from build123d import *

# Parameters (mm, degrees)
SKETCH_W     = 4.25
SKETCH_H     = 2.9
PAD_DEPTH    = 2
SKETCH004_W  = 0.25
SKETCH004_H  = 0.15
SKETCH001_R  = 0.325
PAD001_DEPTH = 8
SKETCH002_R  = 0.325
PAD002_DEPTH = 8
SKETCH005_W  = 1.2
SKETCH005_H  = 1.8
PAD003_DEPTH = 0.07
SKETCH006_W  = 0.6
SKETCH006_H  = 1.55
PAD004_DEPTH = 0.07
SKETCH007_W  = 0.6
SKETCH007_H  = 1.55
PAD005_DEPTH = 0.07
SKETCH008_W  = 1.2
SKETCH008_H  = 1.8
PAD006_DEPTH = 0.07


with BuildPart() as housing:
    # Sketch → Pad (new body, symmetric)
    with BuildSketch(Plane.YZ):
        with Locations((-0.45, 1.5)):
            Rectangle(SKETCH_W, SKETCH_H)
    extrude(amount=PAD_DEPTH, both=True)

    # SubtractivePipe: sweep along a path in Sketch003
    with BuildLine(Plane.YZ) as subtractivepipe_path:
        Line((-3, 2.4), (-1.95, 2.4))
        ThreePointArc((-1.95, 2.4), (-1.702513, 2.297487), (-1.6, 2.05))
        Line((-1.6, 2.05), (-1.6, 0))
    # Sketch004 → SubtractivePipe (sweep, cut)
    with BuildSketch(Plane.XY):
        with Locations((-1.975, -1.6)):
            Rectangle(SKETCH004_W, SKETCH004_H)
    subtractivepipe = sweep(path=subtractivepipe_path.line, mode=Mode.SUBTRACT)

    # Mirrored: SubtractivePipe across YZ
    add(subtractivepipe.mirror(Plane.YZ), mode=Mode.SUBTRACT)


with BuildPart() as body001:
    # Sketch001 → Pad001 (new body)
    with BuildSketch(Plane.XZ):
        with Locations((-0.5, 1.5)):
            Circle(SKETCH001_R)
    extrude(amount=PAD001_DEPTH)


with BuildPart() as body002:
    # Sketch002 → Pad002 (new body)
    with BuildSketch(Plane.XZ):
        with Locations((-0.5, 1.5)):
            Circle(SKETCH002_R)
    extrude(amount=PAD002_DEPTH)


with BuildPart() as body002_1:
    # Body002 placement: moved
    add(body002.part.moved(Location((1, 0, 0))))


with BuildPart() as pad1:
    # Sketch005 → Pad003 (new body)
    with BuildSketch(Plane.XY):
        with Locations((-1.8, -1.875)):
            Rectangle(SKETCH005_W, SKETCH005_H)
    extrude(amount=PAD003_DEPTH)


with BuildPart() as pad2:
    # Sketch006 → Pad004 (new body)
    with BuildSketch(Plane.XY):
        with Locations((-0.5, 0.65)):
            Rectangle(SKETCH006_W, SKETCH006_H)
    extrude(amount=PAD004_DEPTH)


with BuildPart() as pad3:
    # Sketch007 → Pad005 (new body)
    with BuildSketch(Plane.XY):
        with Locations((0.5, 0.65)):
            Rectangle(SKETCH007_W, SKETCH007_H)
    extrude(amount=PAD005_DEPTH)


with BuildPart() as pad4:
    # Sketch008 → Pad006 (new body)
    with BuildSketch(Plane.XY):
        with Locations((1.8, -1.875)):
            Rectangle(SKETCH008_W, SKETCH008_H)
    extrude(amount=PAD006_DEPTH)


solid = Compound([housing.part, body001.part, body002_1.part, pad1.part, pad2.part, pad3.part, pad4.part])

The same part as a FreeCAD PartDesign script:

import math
import FreeCAD as App
import Part
import Sketcher

V = App.Vector
Q = App.Units.Quantity


def add_polygon(sketch, points):
    """Adds a closed chain of lines whose ends are joined by coincident constraints."""
    first, n = sketch.GeometryCount, len(points)
    for a, b in zip(points, points[1:] + points[:1]):
        sketch.addGeometry(Part.LineSegment(App.Vector(*a, 0), App.Vector(*b, 0)), False)
    for i in range(n):
        sketch.addConstraint(Sketcher.Constraint("Coincident", first + i, 2, first + (i + 1) % n, 1))

doc = App.newDocument("Part")
body = doc.addObject("PartDesign::Body", "Body")

# Sketch on YZ plane
sketch1 = body.newObject("Sketcher::SketchObject", "Sketch")
sketch1.AttachmentSupport = (doc.getObject("YZ_Plane"), [""])
sketch1.MapMode = "FlatFace"
add_polygon(sketch1, [(-2.6, 3), (-2.6, 0.1), (1.7, 0.1), (1.7, 3)])  # lines 0-3
sketch1.addConstraint(Sketcher.Constraint("Vertical", 0))
sketch1.addConstraint(Sketcher.Constraint("Horizontal", 1))
sketch1.addConstraint(Sketcher.Constraint("Vertical", 2))
sketch1.addConstraint(Sketcher.Constraint("Horizontal", 3))
sketch1.addConstraint(Sketcher.Constraint("DistanceY", 0, 2, 0, 1, Q("2.9 mm")))
sketch1.addConstraint(Sketcher.Constraint("DistanceX", 1, 1, 1, 2, Q("4.25 mm")))
sketch1.addConstraint(Sketcher.Constraint("DistanceY", -1, 1, 0, 2, Q("0.05 mm")))
sketch1.addConstraint(Sketcher.Constraint("DistanceX", 0, 2, -1, 1, Q("2.575 mm")))
pad1 = body.newObject("PartDesign::Pad", "Pad")
pad1.Profile = sketch1
pad1.Length = 4
pad1.Midplane = True

# Sketch on XY plane
sketch2 = body.newObject("Sketcher::SketchObject", "Sketch001")
sketch2.AttachmentSupport = (doc.getObject("XY_Plane"), [""])
sketch2.MapMode = "FlatFace"
add_polygon(sketch2, [(-2.1, -1.52), (-2.1, -1.68), (-1.85, -1.68), (-1.85, -1.52)])  # lines 0-3
sketch2.addConstraint(Sketcher.Constraint("Vertical", 0))
sketch2.addConstraint(Sketcher.Constraint("Horizontal", 1))
sketch2.addConstraint(Sketcher.Constraint("Vertical", 2))
sketch2.addConstraint(Sketcher.Constraint("Horizontal", 3))
sketch2.addConstraint(Sketcher.Constraint("DistanceX", 1, 1, 1, 2, Q("0.25 mm")))
sketch2.addConstraint(Sketcher.Constraint("DistanceY", 0, 2, 0, 1, Q("0.15 mm")))
sketch2.addConstraint(Sketcher.Constraint("DistanceX", 0, 2, -1, 1, Q("2.1 mm")))
sketch2.addConstraint(Sketcher.Constraint("DistanceY", 0, 2, -1, 1, Q("1.675 mm")))

# Sketch on YZ plane
sketch3 = body.newObject("Sketcher::SketchObject", "Sketch002")
sketch3.AttachmentSupport = (doc.getObject("YZ_Plane"), [""])
sketch3.MapMode = "FlatFace"
sketch3.addGeometry(Part.LineSegment(V(-3, 2.4, 0), V(-1.95, 2.4, 0)), False)
sketch3.addGeometry(Part.ArcOfCircle(Part.Circle(V(-1.95, 2.05, 0), V(0, 0, 1), 0.35), math.radians(0), math.radians(90)), False)
sketch3.addGeometry(Part.LineSegment(V(-1.6, 2.05, 0), V(-1.6, 0, 0)), False)
sketch3.addConstraint(Sketcher.Constraint("Coincident", 0, 2, 1, 2))
sketch3.addConstraint(Sketcher.Constraint("Coincident", 1, 1, 2, 1))
sketch3.addConstraint(Sketcher.Constraint("Horizontal", 0))
sketch3.addConstraint(Sketcher.Constraint("Vertical", 2))
sketch3.addConstraint(Sketcher.Constraint("PointOnObject", 2, 2, -1))
sketch3.addConstraint(Sketcher.Constraint("Vertical", 1, 3, 0, 2))
sketch3.addConstraint(Sketcher.Constraint("Radius", 1, Q("0.350001 mm")))
sketch3.addConstraint(Sketcher.Constraint("DistanceX", 0, 1, -1, 1, Q("3 mm")))
sketch3.addConstraint(Sketcher.Constraint("DistanceX", 0, 1, 0, 2, Q("1.05 mm")))
sketch3.addConstraint(Sketcher.Constraint("DistanceY", 2, 2, 2, 1, Q("2.05 mm")))
sketch3.addConstraint(Sketcher.Constraint("DistanceY", -1, 1, 0, 1, Q("2.4 mm")))
doc.recompute()

subtractivepipe = body.newObject("PartDesign::SubtractivePipe", "SubtractivePipe")
subtractivepipe.Profile = sketch2
subtractivepipe.Spine = (sketch3, ["Edge1", "Edge2", "Edge3"])
doc.recompute()

mirrored = body.newObject("PartDesign::Mirrored", "Mirrored")
mirrored.Originals = [subtractivepipe]
mirrored.MirrorPlane = (doc.getObject("YZ_Plane"), [""])
body.Tip = mirrored
body2 = doc.addObject("PartDesign::Body", "Body001")

# Sketch on XZ plane
sketch4 = body2.newObject("Sketcher::SketchObject", "Sketch003")
sketch4.AttachmentSupport = (doc.getObject("XZ_Plane001"), [""])
sketch4.MapMode = "FlatFace"
sketch4.addGeometry(Part.Circle(V(-0.5, 1.5, 0), V(0, 0, 1), 0.33), False)
sketch4.addConstraint(Sketcher.Constraint("Diameter", 0, Q("0.65 mm")))
sketch4.addConstraint(Sketcher.Constraint("DistanceX", 0, 3, -1, 1, Q("0.5 mm")))
sketch4.addConstraint(Sketcher.Constraint("DistanceY", -1, 1, 0, 3, Q("1.5 mm")))
pad2 = body2.newObject("PartDesign::Pad", "Pad001")
pad2.Profile = sketch4
pad2.Length = 8
body3 = doc.addObject("PartDesign::Body", "Body002")

# Sketch on XZ plane
sketch5 = body3.newObject("Sketcher::SketchObject", "Sketch004")
sketch5.AttachmentSupport = (doc.getObject("XZ_Plane002"), [""])
sketch5.MapMode = "FlatFace"
sketch5.addGeometry(Part.Circle(V(-0.5, 1.5, 0), V(0, 0, 1), 0.33), False)
sketch5.addConstraint(Sketcher.Constraint("Diameter", 0, Q("0.65 mm")))
sketch5.addConstraint(Sketcher.Constraint("DistanceX", 0, 3, -1, 1, Q("0.5 mm")))
sketch5.addConstraint(Sketcher.Constraint("DistanceY", -1, 1, 0, 3, Q("1.5 mm")))
pad3 = body3.newObject("PartDesign::Pad", "Pad002")
pad3.Profile = sketch5
pad3.Length = 8
body4 = doc.addObject("PartDesign::Body", "Body003")
doc.recompute()

body3.Placement = App.Placement(V(1, 0, 0), App.Rotation(V(0, 0, 1), 0))
boolean = body4.newObject("PartDesign::Boolean", "Boolean")
boolean.Type = "Fuse"
boolean.addObjects([body3])
body5 = doc.addObject("PartDesign::Body", "Body004")

# Sketch on XY plane
sketch6 = body5.newObject("Sketcher::SketchObject", "Sketch005")
sketch6.AttachmentSupport = (doc.getObject("XY_Plane004"), [""])
sketch6.MapMode = "FlatFace"
add_polygon(sketch6, [(-2.4, -1), (-2.4, -2.8), (-1.2, -2.8), (-1.2, -1)])  # lines 0-3
sketch6.addConstraint(Sketcher.Constraint("Vertical", 0))
sketch6.addConstraint(Sketcher.Constraint("Horizontal", 1))
sketch6.addConstraint(Sketcher.Constraint("Vertical", 2))
sketch6.addConstraint(Sketcher.Constraint("Horizontal", 3))
sketch6.addConstraint(Sketcher.Constraint("DistanceX", 1, 1, 1, 2, Q("1.2 mm")))
sketch6.addConstraint(Sketcher.Constraint("DistanceY", 0, 2, 0, 1, Q("1.8 mm")))
sketch6.addConstraint(Sketcher.Constraint("DistanceX", 0, 2, -1, 1, Q("2.4 mm")))
sketch6.addConstraint(Sketcher.Constraint("DistanceY", 0, 2, -1, 1, Q("2.775 mm")))
pad4 = body5.newObject("PartDesign::Pad", "Pad003")
pad4.Profile = sketch6
pad4.Length = 0.07
body6 = doc.addObject("PartDesign::Body", "Body005")

# Sketch on XY plane
sketch7 = body6.newObject("Sketcher::SketchObject", "Sketch006")
sketch7.AttachmentSupport = (doc.getObject("XY_Plane005"), [""])
sketch7.MapMode = "FlatFace"
add_polygon(sketch7, [(-0.8, 1.4), (-0.8, -0.1), (-0.2, -0.1), (-0.2, 1.4)])  # lines 0-3
sketch7.addConstraint(Sketcher.Constraint("Vertical", 0))
sketch7.addConstraint(Sketcher.Constraint("Horizontal", 1))
sketch7.addConstraint(Sketcher.Constraint("Vertical", 2))
sketch7.addConstraint(Sketcher.Constraint("Horizontal", 3))
sketch7.addConstraint(Sketcher.Constraint("DistanceX", 1, 1, 1, 2, Q("0.6 mm")))
sketch7.addConstraint(Sketcher.Constraint("DistanceY", 0, 2, 0, 1, Q("1.55 mm")))
sketch7.addConstraint(Sketcher.Constraint("DistanceX", 0, 2, -1, 1, Q("0.8 mm")))
sketch7.addConstraint(Sketcher.Constraint("DistanceY", 0, 2, -1, 1, Q("0.125 mm")))
pad5 = body6.newObject("PartDesign::Pad", "Pad004")
pad5.Profile = sketch7
pad5.Length = 0.07
body7 = doc.addObject("PartDesign::Body", "Body006")

# Sketch on XY plane
sketch8 = body7.newObject("Sketcher::SketchObject", "Sketch007")
sketch8.AttachmentSupport = (doc.getObject("XY_Plane006"), [""])
sketch8.MapMode = "FlatFace"
add_polygon(sketch8, [(0.2, 1.4), (0.2, -0.1), (0.8, -0.1), (0.8, 1.4)])  # lines 0-3
sketch8.addConstraint(Sketcher.Constraint("Vertical", 0))
sketch8.addConstraint(Sketcher.Constraint("Horizontal", 1))
sketch8.addConstraint(Sketcher.Constraint("Vertical", 2))
sketch8.addConstraint(Sketcher.Constraint("Horizontal", 3))
sketch8.addConstraint(Sketcher.Constraint("DistanceX", 1, 1, 1, 2, Q("0.6 mm")))
sketch8.addConstraint(Sketcher.Constraint("DistanceY", 0, 2, 0, 1, Q("1.55 mm")))
sketch8.addConstraint(Sketcher.Constraint("DistanceX", -1, 1, 0, 2, Q("0.2 mm")))
sketch8.addConstraint(Sketcher.Constraint("DistanceY", 0, 2, -1, 1, Q("0.125 mm")))
pad6 = body7.newObject("PartDesign::Pad", "Pad005")
pad6.Profile = sketch8
pad6.Length = 0.07
body8 = doc.addObject("PartDesign::Body", "Body007")

# Sketch on XY plane
sketch9 = body8.newObject("Sketcher::SketchObject", "Sketch008")
sketch9.AttachmentSupport = (doc.getObject("XY_Plane007"), [""])
sketch9.MapMode = "FlatFace"
add_polygon(sketch9, [(1.2, -1), (1.2, -2.8), (2.4, -2.8), (2.4, -1)])  # lines 0-3
sketch9.addConstraint(Sketcher.Constraint("Vertical", 0))
sketch9.addConstraint(Sketcher.Constraint("Horizontal", 1))
sketch9.addConstraint(Sketcher.Constraint("Vertical", 2))
sketch9.addConstraint(Sketcher.Constraint("Horizontal", 3))
sketch9.addConstraint(Sketcher.Constraint("DistanceX", 1, 1, 1, 2, Q("1.2 mm")))
sketch9.addConstraint(Sketcher.Constraint("DistanceY", 0, 2, 0, 1, Q("1.8 mm")))
sketch9.addConstraint(Sketcher.Constraint("DistanceX", -1, 1, 0, 2, Q("1.2 mm")))
sketch9.addConstraint(Sketcher.Constraint("DistanceY", 0, 2, -1, 1, Q("2.775 mm")))
pad7 = body8.newObject("PartDesign::Pad", "Pad006")
pad7.Profile = sketch9
pad7.Length = 0.07

doc.recompute()
